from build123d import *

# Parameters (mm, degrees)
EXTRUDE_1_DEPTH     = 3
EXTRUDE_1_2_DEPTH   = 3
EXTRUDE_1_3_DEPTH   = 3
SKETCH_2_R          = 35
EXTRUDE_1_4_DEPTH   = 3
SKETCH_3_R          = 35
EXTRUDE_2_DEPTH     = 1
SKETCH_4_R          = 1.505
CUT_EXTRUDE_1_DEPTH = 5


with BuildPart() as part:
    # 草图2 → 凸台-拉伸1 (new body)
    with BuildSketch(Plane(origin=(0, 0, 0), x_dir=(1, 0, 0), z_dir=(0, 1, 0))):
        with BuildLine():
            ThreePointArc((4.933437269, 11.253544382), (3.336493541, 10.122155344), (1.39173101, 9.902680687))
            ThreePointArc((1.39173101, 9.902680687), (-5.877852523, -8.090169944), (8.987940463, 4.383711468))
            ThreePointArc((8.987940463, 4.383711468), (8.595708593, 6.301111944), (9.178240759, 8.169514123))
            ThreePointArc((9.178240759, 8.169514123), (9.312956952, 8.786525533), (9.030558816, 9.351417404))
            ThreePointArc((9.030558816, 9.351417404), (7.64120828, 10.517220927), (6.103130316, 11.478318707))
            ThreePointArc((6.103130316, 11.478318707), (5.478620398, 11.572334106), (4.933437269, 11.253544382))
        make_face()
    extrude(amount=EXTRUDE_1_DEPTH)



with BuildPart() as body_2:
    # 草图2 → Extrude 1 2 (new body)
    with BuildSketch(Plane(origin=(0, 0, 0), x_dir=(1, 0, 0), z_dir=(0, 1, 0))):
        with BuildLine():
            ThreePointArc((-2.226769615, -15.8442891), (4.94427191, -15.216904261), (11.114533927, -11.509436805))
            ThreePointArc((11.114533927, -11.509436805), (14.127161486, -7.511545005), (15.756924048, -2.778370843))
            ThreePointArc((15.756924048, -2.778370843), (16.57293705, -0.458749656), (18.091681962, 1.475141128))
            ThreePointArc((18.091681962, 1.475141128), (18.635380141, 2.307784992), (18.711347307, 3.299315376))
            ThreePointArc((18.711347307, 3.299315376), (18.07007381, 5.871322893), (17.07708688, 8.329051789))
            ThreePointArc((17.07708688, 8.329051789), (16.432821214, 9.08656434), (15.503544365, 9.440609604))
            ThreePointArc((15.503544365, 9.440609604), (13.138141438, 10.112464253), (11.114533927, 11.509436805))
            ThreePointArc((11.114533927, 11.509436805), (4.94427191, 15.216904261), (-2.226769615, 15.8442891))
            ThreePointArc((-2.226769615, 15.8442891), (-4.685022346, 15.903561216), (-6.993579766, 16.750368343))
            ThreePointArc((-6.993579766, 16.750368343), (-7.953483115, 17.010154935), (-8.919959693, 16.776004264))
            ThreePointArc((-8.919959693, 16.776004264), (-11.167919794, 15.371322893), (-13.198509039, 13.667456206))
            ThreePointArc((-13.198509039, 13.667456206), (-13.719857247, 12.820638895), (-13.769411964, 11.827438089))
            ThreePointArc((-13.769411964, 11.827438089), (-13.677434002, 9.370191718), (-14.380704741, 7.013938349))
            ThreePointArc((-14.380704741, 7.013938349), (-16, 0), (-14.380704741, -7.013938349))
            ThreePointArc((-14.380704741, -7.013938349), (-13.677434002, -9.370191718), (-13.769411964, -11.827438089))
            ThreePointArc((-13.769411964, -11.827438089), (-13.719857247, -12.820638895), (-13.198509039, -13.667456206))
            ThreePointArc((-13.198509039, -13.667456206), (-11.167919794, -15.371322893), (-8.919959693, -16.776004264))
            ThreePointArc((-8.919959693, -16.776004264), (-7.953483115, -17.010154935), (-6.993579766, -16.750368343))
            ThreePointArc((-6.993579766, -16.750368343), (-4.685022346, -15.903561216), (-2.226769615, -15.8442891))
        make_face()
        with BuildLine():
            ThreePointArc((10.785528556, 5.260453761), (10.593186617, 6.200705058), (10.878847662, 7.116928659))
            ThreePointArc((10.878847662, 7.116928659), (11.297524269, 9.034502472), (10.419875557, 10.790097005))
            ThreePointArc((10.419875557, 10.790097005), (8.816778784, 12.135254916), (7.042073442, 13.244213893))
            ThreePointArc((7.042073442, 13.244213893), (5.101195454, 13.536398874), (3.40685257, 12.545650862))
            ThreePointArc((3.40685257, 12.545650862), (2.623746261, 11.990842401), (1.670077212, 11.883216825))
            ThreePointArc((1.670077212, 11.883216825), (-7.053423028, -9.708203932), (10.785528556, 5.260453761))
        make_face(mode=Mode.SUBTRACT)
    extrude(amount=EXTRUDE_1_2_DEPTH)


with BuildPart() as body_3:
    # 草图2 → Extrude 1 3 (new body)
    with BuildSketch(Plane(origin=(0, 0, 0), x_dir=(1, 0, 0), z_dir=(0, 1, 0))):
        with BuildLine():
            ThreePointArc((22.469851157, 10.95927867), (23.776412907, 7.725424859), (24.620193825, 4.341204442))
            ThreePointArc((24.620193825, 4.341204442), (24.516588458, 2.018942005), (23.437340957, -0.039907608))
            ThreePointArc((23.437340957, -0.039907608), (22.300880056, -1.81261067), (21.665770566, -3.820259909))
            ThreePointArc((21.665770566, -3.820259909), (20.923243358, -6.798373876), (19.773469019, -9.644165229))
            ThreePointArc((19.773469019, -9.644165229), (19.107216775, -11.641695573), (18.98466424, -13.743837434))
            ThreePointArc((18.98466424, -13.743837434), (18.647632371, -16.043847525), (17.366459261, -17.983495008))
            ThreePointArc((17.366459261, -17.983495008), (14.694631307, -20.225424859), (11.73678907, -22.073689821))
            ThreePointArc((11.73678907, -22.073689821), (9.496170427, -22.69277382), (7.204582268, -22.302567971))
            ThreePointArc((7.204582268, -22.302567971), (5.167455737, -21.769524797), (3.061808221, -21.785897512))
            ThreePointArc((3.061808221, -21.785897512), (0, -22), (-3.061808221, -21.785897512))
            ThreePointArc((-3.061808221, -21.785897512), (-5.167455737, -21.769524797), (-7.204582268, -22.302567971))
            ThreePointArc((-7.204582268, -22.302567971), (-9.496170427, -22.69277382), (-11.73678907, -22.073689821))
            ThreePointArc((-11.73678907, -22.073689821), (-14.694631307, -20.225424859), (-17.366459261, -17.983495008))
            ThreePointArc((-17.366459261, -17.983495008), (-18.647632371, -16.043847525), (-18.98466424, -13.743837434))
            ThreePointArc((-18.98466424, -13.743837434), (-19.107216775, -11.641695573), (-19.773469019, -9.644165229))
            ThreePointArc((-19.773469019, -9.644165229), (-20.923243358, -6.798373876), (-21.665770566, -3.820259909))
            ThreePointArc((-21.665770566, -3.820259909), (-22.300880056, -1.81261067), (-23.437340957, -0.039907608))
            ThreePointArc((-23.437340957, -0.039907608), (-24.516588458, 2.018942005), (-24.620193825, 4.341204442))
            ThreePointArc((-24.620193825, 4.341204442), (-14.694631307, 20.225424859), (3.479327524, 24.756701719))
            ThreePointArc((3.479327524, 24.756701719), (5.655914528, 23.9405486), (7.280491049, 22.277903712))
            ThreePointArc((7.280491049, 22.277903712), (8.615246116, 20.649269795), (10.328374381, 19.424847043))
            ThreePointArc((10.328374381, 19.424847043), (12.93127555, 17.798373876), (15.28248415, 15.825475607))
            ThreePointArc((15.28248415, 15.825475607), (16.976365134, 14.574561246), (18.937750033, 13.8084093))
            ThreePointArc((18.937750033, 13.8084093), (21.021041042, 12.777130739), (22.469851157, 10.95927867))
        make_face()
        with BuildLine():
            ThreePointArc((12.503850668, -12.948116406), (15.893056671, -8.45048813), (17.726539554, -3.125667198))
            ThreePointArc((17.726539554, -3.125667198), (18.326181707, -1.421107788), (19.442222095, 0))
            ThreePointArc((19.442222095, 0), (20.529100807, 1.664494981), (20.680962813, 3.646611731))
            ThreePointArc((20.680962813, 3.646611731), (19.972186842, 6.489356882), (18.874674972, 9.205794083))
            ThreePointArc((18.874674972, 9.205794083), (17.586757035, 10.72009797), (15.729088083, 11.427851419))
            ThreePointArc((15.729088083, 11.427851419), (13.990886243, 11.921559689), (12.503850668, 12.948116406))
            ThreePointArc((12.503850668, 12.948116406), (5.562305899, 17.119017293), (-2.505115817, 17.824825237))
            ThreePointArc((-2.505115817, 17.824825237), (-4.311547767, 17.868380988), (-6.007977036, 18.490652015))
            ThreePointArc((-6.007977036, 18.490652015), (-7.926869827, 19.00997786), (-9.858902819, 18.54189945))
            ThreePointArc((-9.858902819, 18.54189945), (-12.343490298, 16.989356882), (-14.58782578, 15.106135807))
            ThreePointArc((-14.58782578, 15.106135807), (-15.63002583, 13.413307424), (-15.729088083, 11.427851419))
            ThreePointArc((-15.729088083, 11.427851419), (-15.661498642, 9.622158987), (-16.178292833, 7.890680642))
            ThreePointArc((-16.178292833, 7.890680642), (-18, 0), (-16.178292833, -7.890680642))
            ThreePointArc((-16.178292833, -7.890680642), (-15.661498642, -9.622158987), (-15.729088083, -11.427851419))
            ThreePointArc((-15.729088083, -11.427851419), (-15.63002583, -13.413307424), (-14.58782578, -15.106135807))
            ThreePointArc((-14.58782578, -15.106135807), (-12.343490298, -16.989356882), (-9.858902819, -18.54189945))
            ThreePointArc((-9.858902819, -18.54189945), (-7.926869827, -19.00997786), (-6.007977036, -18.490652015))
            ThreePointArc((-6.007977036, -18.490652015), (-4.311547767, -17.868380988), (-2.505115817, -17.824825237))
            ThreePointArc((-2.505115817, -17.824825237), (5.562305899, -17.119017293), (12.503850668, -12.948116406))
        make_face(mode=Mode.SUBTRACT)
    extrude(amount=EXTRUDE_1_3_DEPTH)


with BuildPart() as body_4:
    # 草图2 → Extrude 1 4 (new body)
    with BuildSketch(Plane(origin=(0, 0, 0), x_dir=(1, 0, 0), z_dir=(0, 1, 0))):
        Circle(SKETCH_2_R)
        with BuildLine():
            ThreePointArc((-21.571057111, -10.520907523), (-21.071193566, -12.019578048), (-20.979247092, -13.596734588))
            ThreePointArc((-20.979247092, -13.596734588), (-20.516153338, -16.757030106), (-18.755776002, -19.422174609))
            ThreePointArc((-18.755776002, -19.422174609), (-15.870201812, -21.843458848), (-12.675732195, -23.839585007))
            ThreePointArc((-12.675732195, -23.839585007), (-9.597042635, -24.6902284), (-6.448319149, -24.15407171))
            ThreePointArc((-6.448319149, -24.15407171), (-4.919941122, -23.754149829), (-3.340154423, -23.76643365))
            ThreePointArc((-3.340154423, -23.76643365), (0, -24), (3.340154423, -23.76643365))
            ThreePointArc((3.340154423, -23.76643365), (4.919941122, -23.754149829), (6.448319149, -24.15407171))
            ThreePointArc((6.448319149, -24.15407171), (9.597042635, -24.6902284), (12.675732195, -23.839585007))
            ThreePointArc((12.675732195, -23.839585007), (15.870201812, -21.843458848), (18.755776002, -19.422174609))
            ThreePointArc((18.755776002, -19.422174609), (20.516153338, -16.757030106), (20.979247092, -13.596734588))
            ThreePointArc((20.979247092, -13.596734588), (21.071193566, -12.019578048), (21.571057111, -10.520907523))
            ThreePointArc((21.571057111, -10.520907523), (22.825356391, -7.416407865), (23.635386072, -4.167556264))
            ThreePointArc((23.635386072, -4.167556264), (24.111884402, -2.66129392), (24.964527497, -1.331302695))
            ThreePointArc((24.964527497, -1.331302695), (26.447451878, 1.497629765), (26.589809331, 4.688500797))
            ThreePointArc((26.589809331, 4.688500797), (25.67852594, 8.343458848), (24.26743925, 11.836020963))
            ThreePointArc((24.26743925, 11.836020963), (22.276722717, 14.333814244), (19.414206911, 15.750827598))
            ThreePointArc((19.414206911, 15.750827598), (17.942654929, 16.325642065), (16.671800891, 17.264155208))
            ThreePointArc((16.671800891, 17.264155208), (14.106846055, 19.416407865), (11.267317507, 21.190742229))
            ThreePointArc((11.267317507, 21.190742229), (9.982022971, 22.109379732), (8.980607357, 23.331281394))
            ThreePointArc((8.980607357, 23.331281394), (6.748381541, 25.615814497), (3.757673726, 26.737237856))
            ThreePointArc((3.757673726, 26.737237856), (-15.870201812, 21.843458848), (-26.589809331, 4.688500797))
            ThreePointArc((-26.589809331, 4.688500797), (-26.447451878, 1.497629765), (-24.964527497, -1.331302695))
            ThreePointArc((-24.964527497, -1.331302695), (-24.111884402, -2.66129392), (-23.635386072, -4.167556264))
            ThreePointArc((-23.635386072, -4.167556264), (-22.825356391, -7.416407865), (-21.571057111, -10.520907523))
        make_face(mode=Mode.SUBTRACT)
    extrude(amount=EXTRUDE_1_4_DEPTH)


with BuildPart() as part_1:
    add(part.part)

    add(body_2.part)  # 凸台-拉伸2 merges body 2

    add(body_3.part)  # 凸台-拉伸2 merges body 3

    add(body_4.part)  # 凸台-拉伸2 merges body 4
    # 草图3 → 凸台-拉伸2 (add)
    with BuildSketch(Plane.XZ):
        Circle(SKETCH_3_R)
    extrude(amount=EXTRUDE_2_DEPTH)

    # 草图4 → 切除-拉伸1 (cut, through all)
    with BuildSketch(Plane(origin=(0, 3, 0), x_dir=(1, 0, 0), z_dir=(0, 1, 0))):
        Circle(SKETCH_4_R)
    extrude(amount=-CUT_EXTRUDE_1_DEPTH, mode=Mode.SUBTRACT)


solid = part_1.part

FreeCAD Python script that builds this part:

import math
import FreeCAD as App
import Part
import Sketcher
Q = App.Units.Quantity

doc = App.newDocument("Part")
body = doc.addObject("PartDesign::Body", "Body")

# Sketch on XZ plane
sketch1 = doc.addObject("Sketcher::SketchObject", "Sketch")
body.addObject(sketch1)
sketch1.AttachmentSupport = (doc.XZ_Plane, [""])
sketch1.MapMode = "FlatFace"
sketch1.addGeometry(Part.ArcOfCircle(Part.Circle(App.Vector(1.9, -13.8, 0), App.Vector(0, 0, 1), 3.9), math.radians(40), math.radians(98)), False)
sketch1.addGeometry(Part.ArcOfCircle(Part.Circle(App.Vector(0, 0, 0), App.Vector(0, 0, 1), 10), math.radians(-26), math.radians(278)), False)
sketch1.addGeometry(Part.ArcOfCircle(Part.Circle(App.Vector(12.5, -6.1, 0), App.Vector(0, 0, 1), 3.9), math.radians(154), math.radians(212)), False)
sketch1.addGeometry(Part.ArcOfCircle(Part.Circle(App.Vector(8.4, -8.7, 0), App.Vector(0, 0, 1), 0.9), math.radians(-46), math.radians(32)), False)
sketch1.addGeometry(Part.ArcOfCircle(Part.Circle(App.Vector(0, 0, 0), App.Vector(0, 0, 1), 13), math.radians(-62), math.radians(-46)), False)
sketch1.addGeometry(Part.ArcOfCircle(Part.Circle(App.Vector(5.7, -10.6, 0), App.Vector(0, 0, 1), 0.9), math.radians(-140), math.radians(-62)), False)
sketch1.addConstraint(Sketcher.Constraint("Tangent", 0, 2, 1, 2))
sketch1.addConstraint(Sketcher.Constraint("Tangent", 1, 1, 2, 1))
sketch1.addConstraint(Sketcher.Constraint("Tangent", 2, 2, 3, 2))
sketch1.addConstraint(Sketcher.Constraint("Tangent", 3, 1, 4, 2))
sketch1.addConstraint(Sketcher.Constraint("Tangent", 4, 1, 5, 2))
sketch1.addConstraint(Sketcher.Constraint("Tangent", 5, 1, 0, 1))
sketch1.addConstraint(Sketcher.Constraint("Coincident", 1, 3, -1, 1))
sketch1.addConstraint(Sketcher.Constraint("Coincident", 4, 3, -1, 1))
sketch1.addConstraint(Sketcher.Constraint("Equal", 0, 2))
sketch1.addConstraint(Sketcher.Constraint("Equal", 3, 5))
sketch1.addConstraint(Sketcher.Constraint("Radius", 1, Q("10 mm")))
sketch1.addConstraint(Sketcher.Constraint("Radius", 4, Q("13 mm")))
sketch1.addConstraint(Sketcher.Constraint("Radius", 0, Q("3.924479 mm")))
sketch1.addConstraint(Sketcher.Constraint("Radius", 3, Q("0.948838 mm")))
sketch1.addConstraint(Sketcher.Constraint("DistanceY", 5, 1, 5, 3, Q("0.613 mm")))
sketch1.addConstraint(Sketcher.Constraint("DistanceY", 0, 2, 3, 3, Q("1.2338 mm")))
pad1 = doc.addObject("PartDesign::Pad", "Pad")
body.addObject(pad1)
pad1.Profile = sketch1
pad1.Length = 3
pad1.Reversed = True
body2 = doc.addObject("PartDesign::Body", "Body001")

# Sketch on XZ plane
sketch2 = doc.addObject("Sketcher::SketchObject", "Sketch001")
body2.addObject(sketch2)
sketch2.AttachmentSupport = (doc.getObject("XZ_Plane001"), [""])
sketch2.MapMode = "FlatFace"
sketch2.addGeometry(Part.ArcOfCircle(Part.Circle(App.Vector(0, 0, 0), App.Vector(0, 0, 1), 16), math.radians(46), math.radians(98)), False)
sketch2.addGeometry(Part.ArcOfCircle(Part.Circle(App.Vector(0, 0, 0), App.Vector(0, 0, 1), 16), math.radians(10), math.radians(46)), False)
sketch2.addGeometry(Part.ArcOfCircle(Part.Circle(App.Vector(23.2, 4.1, 0), App.Vector(0, 0, 1), 7.5), math.radians(-170), math.radians(-132)), False)
sketch2.addGeometry(Part.ArcOfCircle(Part.Circle(App.Vector(16.7, -3, 0), App.Vector(0, 0, 1), 2), math.radians(-10), math.radians(48)), False)
sketch2.addGeometry(Part.ArcOfCircle(Part.Circle(App.Vector(0, 0, 0), App.Vector(0, 0, 1), 19), math.radians(-26), math.radians(-10)), False)
sketch2.addGeometry(Part.ArcOfCircle(Part.Circle(App.Vector(15.3, -7.5, 0), App.Vector(0, 0, 1), 2), math.radians(-84), math.radians(-26)), False)
sketch2.addGeometry(Part.ArcOfCircle(Part.Circle(App.Vector(16.4, -16.9, 0), App.Vector(0, 0, 1), 7.5), math.radians(96), math.radians(134)), False)
sketch2.addGeometry(Part.ArcOfCircle(Part.Circle(App.Vector(0, 0, 0), App.Vector(0, 0, 1), 16), math.radians(-98), math.radians(-46)), False)
sketch2.addGeometry(Part.ArcOfCircle(Part.Circle(App.Vector(-3.3, -23.3, 0), App.Vector(0, 0, 1), 7.5), math.radians(82), math.radians(120)), False)
sketch2.addGeometry(Part.ArcOfCircle(Part.Circle(App.Vector(-8, -15, 0), App.Vector(0, 0, 1), 2), math.radians(-118), math.radians(-60)), False)
sketch2.addGeometry(Part.ArcOfCircle(Part.Circle(App.Vector(0, 0, 0), App.Vector(0, 0, 1), 19), math.radians(-134), math.radians(-118)), False)
sketch2.addGeometry(Part.ArcOfCircle(Part.Circle(App.Vector(-11.8, -12.2, 0), App.Vector(0, 0, 1), 2), math.radians(168), math.radians(226)), False)
sketch2.addGeometry(Part.ArcOfCircle(Part.Circle(App.Vector(-21.2, -10.3, 0), App.Vector(0, 0, 1), 7.5), math.radians(-12), math.radians(26)), False)
sketch2.addGeometry(Part.ArcOfCircle(Part.Circle(App.Vector(0, 0, 0), App.Vector(0, 0, 1), 16), math.radians(154), math.radians(206)), False)
sketch2.addGeometry(Part.ArcOfCircle(Part.Circle(App.Vector(-21.2, 10.3, 0), App.Vector(0, 0, 1), 7.5), math.radians(-26), math.radians(12)), False)
sketch2.addGeometry(Part.ArcOfCircle(Part.Circle(App.Vector(-11.8, 12.2, 0), App.Vector(0, 0, 1), 2), math.radians(134), math.radians(192)), False)
sketch2.addGeometry(Part.ArcOfCircle(Part.Circle(App.Vector(0, 0, 0), App.Vector(0, 0, 1), 19), math.radians(118), math.radians(134)), False)
sketch2.addGeometry(Part.ArcOfCircle(Part.Circle(App.Vector(-8, 15, 0), App.Vector(0, 0, 1), 2), math.radians(60), math.radians(118)), False)
sketch2.addGeometry(Part.ArcOfCircle(Part.Circle(App.Vector(-3.3, 23.3, 0), App.Vector(0, 0, 1), 7.5), math.radians(-120), math.radians(-82)), False)
sketch2.addGeometry(Part.ArcOfCircle(Part.Circle(App.Vector(12.5, -6.1, 0), App.Vector(0, 0, 1), 1.9), math.radians(154), math.radians(212)), False)
sketch2.addGeometry(Part.ArcOfCircle(Part.Circle(App.Vector(0, 0, 0), App.Vector(0, 0, 1), 12), math.radians(-26), math.radians(278)), False)
sketch2.addGeometry(Part.ArcOfCircle(Part.Circle(App.Vector(1.9, -13.8, 0), App.Vector(0, 0, 1), 1.9), math.radians(40), math.radians(98)), False)
sketch2.addGeometry(Part.ArcOfCircle(Part.Circle(App.Vector(5.7, -10.6, 0), App.Vector(0, 0, 1), 2.9), math.radians(-140), math.radians(-62)), False)
sketch2.addGeometry(Part.ArcOfCircle(Part.Circle(App.Vector(0, 0, 0), App.Vector(0, 0, 1), 15), math.radians(-62), math.radians(-46)), False)
sketch2.addGeometry(Part.ArcOfCircle(Part.Circle(App.Vector(8.4, -8.7, 0), App.Vector(0, 0, 1), 2.9), math.radians(-46), math.radians(32)), False)
sketch2.addConstraint(Sketcher.Constraint("Tangent", 0, 1, 1, 2))
sketch2.addConstraint(Sketcher.Constraint("Tangent", 1, 1, 2, 1))
sketch2.addConstraint(Sketcher.Constraint("Tangent", 2, 2, 3, 2))
sketch2.addConstraint(Sketcher.Constraint("Tangent", 3, 1, 4, 2))
sketch2.addConstraint(Sketcher.Constraint("Tangent", 4, 1, 5, 2))
sketch2.addConstraint(Sketcher.Constraint("Tangent", 5, 1, 6, 1))
sketch2.addConstraint(Sketcher.Constraint("Tangent", 6, 2, 7, 2))
sketch2.addConstraint(Sketcher.Constraint("Tangent", 7, 1, 8, 1))
sketch2.addConstraint(Sketcher.Constraint("Tangent", 8, 2, 9, 2))
sketch2.addConstraint(Sketcher.Constraint("Tangent", 9, 1, 10, 2))
sketch2.addConstraint(Sketcher.Constraint("Tangent", 10, 1, 11, 2))
sketch2.addConstraint(Sketcher.Constraint("Tangent", 11, 1, 12, 1))
sketch2.addConstraint(Sketcher.Constraint("Tangent", 12, 2, 13, 2))
sketch2.addConstraint(Sketcher.Constraint("Tangent", 13, 1, 14, 1))
sketch2.addConstraint(Sketcher.Constraint("Tangent", 14, 2, 15, 2))
sketch2.addConstraint(Sketcher.Constraint("Tangent", 15, 1, 16, 2))
sketch2.addConstraint(Sketcher.Constraint("Tangent", 16, 1, 17, 2))
sketch2.addConstraint(Sketcher.Constraint("Tangent", 17, 1, 18, 1))
sketch2.addConstraint(Sketcher.Constraint("Tangent", 18, 2, 0, 2))
sketch2.addConstraint(Sketcher.Constraint("Tangent", 19, 1, 20, 1))
sketch2.addConstraint(Sketcher.Constraint("Tangent", 20, 2, 21, 2))
sketch2.addConstraint(Sketcher.Constraint("Tangent", 21, 1, 22, 1))
sketch2.addConstraint(Sketcher.Constraint("Tangent", 22, 2, 23, 1))
sketch2.addConstraint(Sketcher.Constraint("Tangent", 23, 2, 24, 1))
sketch2.addConstraint(Sketcher.Constraint("Tangent", 24, 2, 19, 2))
sketch2.addConstraint(Sketcher.Constraint("Coincident", 0, 3, -1, 1))
sketch2.addConstraint(Sketcher.Constraint("Coincident", 4, 3, -1, 1))
sketch2.addConstraint(Sketcher.Constraint("Coincident", 7, 3, -1, 1))
sketch2.addConstraint(Sketcher.Constraint("Coincident", 10, 3, -1, 1))
sketch2.addConstraint(Sketcher.Constraint("Coincident", 13, 3, -1, 1))
sketch2.addConstraint(Sketcher.Constraint("Coincident", 16, 3, -1, 1))
sketch2.addConstraint(Sketcher.Constraint("Coincident", 20, 3, -1, 1))
sketch2.addConstraint(Sketcher.Constraint("Coincident", 23, 3, -1, 1))
sketch2.addConstraint(Sketcher.Constraint("Equal", 0, 1))
sketch2.addConstraint(Sketcher.Constraint("Equal", 3, 5))
sketch2.addConstraint(Sketcher.Constraint("Equal", 2, 6))
sketch2.addConstraint(Sketcher.Constraint("Equal", 1, 7))
sketch2.addConstraint(Sketcher.Constraint("Equal", 6, 8))
sketch2.addConstraint(Sketcher.Constraint("Equal", 5, 9))
sketch2.addConstraint(Sketcher.Constraint("Equal", 4, 10))
sketch2.addConstraint(Sketcher.Constraint("Equal", 9, 11))
sketch2.addConstraint(Sketcher.Constraint("Equal", 8, 12))
sketch2.addConstraint(Sketcher.Constraint("Equal", 7, 13))
sketch2.addConstraint(Sketcher.Constraint("Equal", 12, 14))
sketch2.addConstraint(Sketcher.Constraint("Equal", 11, 15))
sketch2.addConstraint(Sketcher.Constraint("Equal", 10, 16))
sketch2.addConstraint(Sketcher.Constraint("Equal", 15, 17))
sketch2.addConstraint(Sketcher.Constraint("Equal", 14, 18))
sketch2.addConstraint(Sketcher.Constraint("Equal", 19, 21))
sketch2.addConstraint(Sketcher.Constraint("Equal", 22, 24))
sketch2.addConstraint(Sketcher.Constraint("Vertical", 12, 3, 14, 3))
sketch2.addConstraint(Sketcher.Constraint("Vertical", 9, 3, 17, 3))
sketch2.addConstraint(Sketcher.Constraint("Vertical", 0, 1, 6, 2))
sketch2.addConstraint(Sketcher.Constraint("Radius", 0, Q("16 mm")))
sketch2.addConstraint(Sketcher.Constraint("Radius", 4, Q("19 mm")))
sketch2.addConstraint(Sketcher.Constraint("Radius", 20, Q("12 mm")))
sketch2.addConstraint(Sketcher.Constraint("Radius", 23, Q("15 mm")))
sketch2.addConstraint(Sketcher.Constraint("Radius", 19, Q("1.924478 mm")))
sketch2.addConstraint(Sketcher.Constraint("Radius", 2, Q("7.542726 mm")))
sketch2.addConstraint(Sketcher.Constraint("Radius", 3, Q("2.001906 mm")))
sketch2.addConstraint(Sketcher.Constraint("Radius", 22, Q("2.948838 mm")))
sketch2.addConstraint(Sketcher.Constraint("DistanceY", 19, 3, 3, 3, Q("3.152402 mm")))
sketch2.addConstraint(Sketcher.Constraint("DistanceX", 5, 3, 4, 1, Q("1.799301 mm")))
sketch2.addConstraint(Sketcher.Constraint("DistanceX", 11, 3, 7, 1, Q("9.581099 mm")))
sketch2.addConstraint(Sketcher.Constraint("DistanceY", 8, 2, 21, 3, Q("2.961402 mm")))
sketch2.addConstraint(Sketcher.Constraint("DistanceY", 9, 1, 11, 3, Q("4.548599 mm")))
sketch2.addConstraint(Sketcher.Constraint("DistanceX", -1, 1, 2, 3, Q("23.185059 mm")))
pad2 = doc.addObject("PartDesign::Pad", "Pad001")
body2.addObject(pad2)
pad2.Profile = sketch2
pad2.Length = 3
pad2.Reversed = True
body3 = doc.addObject("PartDesign::Body", "Body002")

# Sketch on XZ plane
sketch3 = doc.addObject("Sketcher::SketchObject", "Sketch002")
body3.addObject(sketch3)
sketch3.AttachmentSupport = (doc.getObject("XZ_Plane002"), [""])
sketch3.MapMode = "FlatFace"
sketch3.addGeometry(Part.ArcOfCircle(Part.Circle(App.Vector(0, 0, 0), App.Vector(0, 0, 1), 25), math.radians(-26), math.radians(-10)), False)
sketch3.addGeometry(Part.ArcOfCircle(Part.Circle(App.Vector(17.7, -8.6, 0), App.Vector(0, 0, 1), 5.3), math.radians(-76), math.radians(-26)), False)
sketch3.addGeometry(Part.ArcOfCircle(Part.Circle(App.Vector(20.8, -21.6, 0), App.Vector(0, 0, 1), 8), math.radians(104), math.radians(134)), False)
sketch3.addGeometry(Part.ArcOfCircle(Part.Circle(App.Vector(0, 0, 0), App.Vector(0, 0, 1), 22), math.radians(-62), math.radians(-46)), False)
sketch3.addGeometry(Part.ArcOfCircle(Part.Circle(App.Vector(14.1, -26.5, 0), App.Vector(0, 0, 1), 8), math.radians(118), math.radians(148)), False)
sketch3.addGeometry(Part.ArcOfCircle(Part.Circle(App.Vector(2.7, -19.5, 0), App.Vector(0, 0, 1), 5.3), math.radians(-82), math.radians(-32)), False)
sketch3.addGeometry(Part.ArcOfCircle(Part.Circle(App.Vector(0, 0, 0), App.Vector(0, 0, 1), 25), math.radians(-170), math.radians(-82)), False)
sketch3.addGeometry(Part.ArcOfCircle(Part.Circle(App.Vector(-19.4, -3.4, 0), App.Vector(0, 0, 1), 5.3), math.radians(140), math.radians(190)), False)
sketch3.addGeometry(Part.ArcOfCircle(Part.Circle(App.Vector(-29.6, 5.2, 0), App.Vector(0, 0, 1), 8), math.radians(-40), math.radians(-10)), False)
sketch3.addGeometry(Part.ArcOfCircle(Part.Circle(App.Vector(0, 0, 0), App.Vector(0, 0, 1), 22), math.radians(154), math.radians(170)), False)
sketch3.addGeometry(Part.ArcOfCircle(Part.Circle(App.Vector(-27, 13.2, 0), App.Vector(0, 0, 1), 8), math.radians(-26), math.radians(4)), False)
sketch3.addGeometry(Part.ArcOfCircle(Part.Circle(App.Vector(-13.7, 14.1, 0), App.Vector(0, 0, 1), 5.3), math.radians(134), math.radians(184)), False)
sketch3.addGeometry(Part.ArcOfCircle(Part.Circle(App.Vector(0, 0, 0), App.Vector(0, 0, 1), 25), math.radians(118), math.radians(134)), False)
sketch3.addGeometry(Part.ArcOfCircle(Part.Circle(App.Vector(-9.2, 17.4, 0), App.Vector(0, 0, 1), 5.3), math.radians(68), math.radians(118)), False)
sketch3.addGeometry(Part.ArcOfCircle(Part.Circle(App.Vector(-4.2, 29.7, 0), App.Vector(0, 0, 1), 8), math.radians(-112), math.radians(-82)), False)
sketch3.addGeometry(Part.ArcOfCircle(Part.Circle(App.Vector(0, 0, 0), App.Vector(0, 0, 1), 22), math.radians(82), math.radians(98)), False)
sketch3.addGeometry(Part.ArcOfCircle(Part.Circle(App.Vector(4.2, 29.7, 0), App.Vector(0, 0, 1), 8), math.radians(-98), math.radians(-68)), False)
sketch3.addGeometry(Part.ArcOfCircle(Part.Circle(App.Vector(9.2, 17.4, 0), App.Vector(0, 0, 1), 5.3), math.radians(62), math.radians(112)), False)
sketch3.addGeometry(Part.ArcOfCircle(Part.Circle(App.Vector(0, 0, 0), App.Vector(0, 0, 1), 25), math.radians(46), math.radians(62)), False)
sketch3.addGeometry(Part.ArcOfCircle(Part.Circle(App.Vector(13.7, 14.1, 0), App.Vector(0, 0, 1), 5.3), math.radians(-4), math.radians(46)), False)
sketch3.addGeometry(Part.ArcOfCircle(Part.Circle(App.Vector(27, 13.2, 0), App.Vector(0, 0, 1), 8), math.radians(176), math.radians(206)), False)
sketch3.addGeometry(Part.ArcOfCircle(Part.Circle(App.Vector(0, 0, 0), App.Vector(0, 0, 1), 22), math.radians(10), math.radians(26)), False)
sketch3.addGeometry(Part.ArcOfCircle(Part.Circle(App.Vector(29.6, 5.2, 0), App.Vector(0, 0, 1), 8), math.radians(-170), math.radians(-140)), False)
sketch3.addGeometry(Part.ArcOfCircle(Part.Circle(App.Vector(19.4, -3.4, 0), App.Vector(0, 0, 1), 5.3), math.radians(-10), math.radians(40)), False)
sketch3.addGeometry(Part.ArcOfCircle(Part.Circle(App.Vector(0, 0, 0), App.Vector(0, 0, 1), 18), math.radians(46), math.radians(98)), False)
sketch3.addGeometry(Part.ArcOfCircle(Part.Circle(App.Vector(-3.3, 23.3, 0), App.Vector(0, 0, 1), 5.5), math.radians(-120), math.radians(-82)), False)
sketch3.addGeometry(Part.ArcOfCircle(Part.Circle(App.Vector(-8, 15, 0), App.Vector(0, 0, 1), 4), math.radians(60), math.radians(118)), False)
sketch3.addGeometry(Part.ArcOfCircle(Part.Circle(App.Vector(0, 0, 0), App.Vector(0, 0, 1), 21), math.radians(118), math.radians(134)), False)
sketch3.addGeometry(Part.ArcOfCircle(Part.Circle(App.Vector(-11.8, 12.2, 0), App.Vector(0, 0, 1), 4), math.radians(134), math.radians(192)), False)
sketch3.addGeometry(Part.ArcOfCircle(Part.Circle(App.Vector(-21.2, 10.3, 0), App.Vector(0, 0, 1), 5.5), math.radians(-26), math.radians(12)), False)
sketch3.addGeometry(Part.ArcOfCircle(Part.Circle(App.Vector(0, 0, 0), App.Vector(0, 0, 1), 18), math.radians(154), math.radians(206)), False)
sketch3.addGeometry(Part.ArcOfCircle(Part.Circle(App.Vector(-21.2, -10.3, 0), App.Vector(0, 0, 1), 5.5), math.radians(-12), math.radians(26)), False)
sketch3.addGeometry(Part.ArcOfCircle(Part.Circle(App.Vector(-11.8, -12.2, 0), App.Vector(0, 0, 1), 4), math.radians(168), math.radians(226)), False)
sketch3.addGeometry(Part.ArcOfCircle(Part.Circle(App.Vector(0, 0, 0), App.Vector(0, 0, 1), 21), math.radians(-134), math.radians(-118)), False)
sketch3.addGeometry(Part.ArcOfCircle(Part.Circle(App.Vector(-8, -15, 0), App.Vector(0, 0, 1), 4), math.radians(-118), math.radians(-60)), False)
sketch3.addGeometry(Part.ArcOfCircle(Part.Circle(App.Vector(-3.3, -23.3, 0), App.Vector(0, 0, 1), 5.5), math.radians(82), math.radians(120)), False)
sketch3.addGeometry(Part.ArcOfCircle(Part.Circle(App.Vector(0, 0, 0), App.Vector(0, 0, 1), 18), math.radians(-98), math.radians(-46)), False)
sketch3.addGeometry(Part.ArcOfCircle(Part.Circle(App.Vector(16.4, -16.9, 0), App.Vector(0, 0, 1), 5.5), math.radians(96), math.radians(134)), False)
sketch3.addGeometry(Part.ArcOfCircle(Part.Circle(App.Vector(15.3, -7.5, 0), App.Vector(0, 0, 1), 4), math.radians(-84), math.radians(-26)), False)
sketch3.addGeometry(Part.ArcOfCircle(Part.Circle(App.Vector(0, 0, 0), App.Vector(0, 0, 1), 21), math.radians(-26), math.radians(-10)), False)
sketch3.addGeometry(Part.ArcOfCircle(Part.Circle(App.Vector(16.7, -3, 0), App.Vector(0, 0, 1), 4), math.radians(-10), math.radians(48)), False)
sketch3.addGeometry(Part.ArcOfCircle(Part.Circle(App.Vector(23.2, 4.1, 0), App.Vector(0, 0, 1), 5.5), math.radians(-170), math.radians(-132)), False)
sketch3.addGeometry(Part.ArcOfCircle(Part.Circle(App.Vector(0, 0, 0), App.Vector(0, 0, 1), 18), math.radians(10), math.radians(46)), False)
sketch3.addConstraint(Sketcher.Constraint("Tangent", 0, 1, 1, 2))
sketch3.addConstraint(Sketcher.Constraint("Tangent", 1, 1, 2, 1))
sketch3.addConstraint(Sketcher.Constraint("Tangent", 2, 2, 3, 2))
sketch3.addConstraint(Sketcher.Constraint("Tangent", 3, 1, 4, 1))
sketch3.addConstraint(Sketcher.Constraint("Tangent", 4, 2, 5, 2))
sketch3.addConstraint(Sketcher.Constraint("Tangent", 5, 1, 6, 2))
sketch3.addConstraint(Sketcher.Constraint("Tangent", 6, 1, 7, 2))
sketch3.addConstraint(Sketcher.Constraint("Tangent", 7, 1, 8, 1))
sketch3.addConstraint(Sketcher.Constraint("Tangent", 8, 2, 9, 2))
sketch3.addConstraint(Sketcher.Constraint("Tangent", 9, 1, 10, 1))
sketch3.addConstraint(Sketcher.Constraint("Tangent", 10, 2, 11, 2))
sketch3.addConstraint(Sketcher.Constraint("Tangent", 11, 1, 12, 2))
sketch3.addConstraint(Sketcher.Constraint("Tangent", 12, 1, 13, 2))
sketch3.addConstraint(Sketcher.Constraint("Tangent", 13, 1, 14, 1))
sketch3.addConstraint(Sketcher.Constraint("Tangent", 14, 2, 15, 2))
sketch3.addConstraint(Sketcher.Constraint("Tangent", 15, 1, 16, 1))
sketch3.addConstraint(Sketcher.Constraint("Tangent", 16, 2, 17, 2))
sketch3.addConstraint(Sketcher.Constraint("Tangent", 17, 1, 18, 2))
sketch3.addConstraint(Sketcher.Constraint("Tangent", 18, 1, 19, 2))
sketch3.addConstraint(Sketcher.Constraint("Tangent", 19, 1, 20, 1))
sketch3.addConstraint(Sketcher.Constraint("Tangent", 20, 2, 21, 2))
sketch3.addConstraint(Sketcher.Constraint("Tangent", 21, 1, 22, 1))
sketch3.addConstraint(Sketcher.Constraint("Tangent", 22, 2, 23, 2))
sketch3.addConstraint(Sketcher.Constraint("Tangent", 23, 1, 0, 2))
sketch3.addConstraint(Sketcher.Constraint("Tangent", 24, 2, 25, 2))
sketch3.addConstraint(Sketcher.Constraint("Tangent", 25, 1, 26, 1))
sketch3.addConstraint(Sketcher.Constraint("Tangent", 26, 2, 27, 1))
sketch3.addConstraint(Sketcher.Constraint("Tangent", 27, 2, 28, 1))
sketch3.addConstraint(Sketcher.Constraint("Tangent", 28, 2, 29, 2))
sketch3.addConstraint(Sketcher.Constraint("Tangent", 29, 1, 30, 1))
sketch3.addConstraint(Sketcher.Constraint("Tangent", 30, 2, 31, 2))
sketch3.addConstraint(Sketcher.Constraint("Tangent", 31, 1, 32, 1))
sketch3.addConstraint(Sketcher.Constraint("Tangent", 32, 2, 33, 1))
sketch3.addConstraint(Sketcher.Constraint("Tangent", 33, 2, 34, 1))
sketch3.addConstraint(Sketcher.Constraint("Tangent", 34, 2, 35, 2))
sketch3.addConstraint(Sketcher.Constraint("Tangent", 35, 1, 36, 1))
sketch3.addConstraint(Sketcher.Constraint("Tangent", 36, 2, 37, 2))
sketch3.addConstraint(Sketcher.Constraint("Tangent", 37, 1, 38, 1))
sketch3.addConstraint(Sketcher.Constraint("Tangent", 38, 2, 39, 1))
sketch3.addConstraint(Sketcher.Constraint("Tangent", 39, 2, 40, 1))
sketch3.addConstraint(Sketcher.Constraint("Tangent", 40, 2, 41, 2))
sketch3.addConstraint(Sketcher.Constraint("Tangent", 41, 1, 42, 1))
sketch3.addConstraint(Sketcher.Constraint("Tangent", 42, 2, 24, 1))
sketch3.addConstraint(Sketcher.Constraint("Coincident", 0, 3, -1, 1))
sketch3.addConstraint(Sketcher.Constraint("Coincident", 3, 3, -1, 1))
sketch3.addConstraint(Sketcher.Constraint("Coincident", 6, 3, -1, 1))
sketch3.addConstraint(Sketcher.Constraint("Coincident", 9, 3, -1, 1))
sketch3.addConstraint(Sketcher.Constraint("Coincident", 12, 3, -1, 1))
sketch3.addConstraint(Sketcher.Constraint("Coincident", 15, 3, -1, 1))
sketch3.addConstraint(Sketcher.Constraint("Coincident", 18, 3, -1, 1))
sketch3.addConstraint(Sketcher.Constraint("Coincident", 21, 3, -1, 1))
sketch3.addConstraint(Sketcher.Constraint("Coincident", 24, 3, -1, 1))
sketch3.addConstraint(Sketcher.Constraint("Coincident", 27, 3, -1, 1))
sketch3.addConstraint(Sketcher.Constraint("Coincident", 30, 3, -1, 1))
sketch3.addConstraint(Sketcher.Constraint("Coincident", 33, 3, -1, 1))
sketch3.addConstraint(Sketcher.Constraint("Coincident", 36, 3, -1, 1))
sketch3.addConstraint(Sketcher.Constraint("Coincident", 39, 3, -1, 1))
sketch3.addConstraint(Sketcher.Constraint("Equal", 2, 4))
sketch3.addConstraint(Sketcher.Constraint("Equal", 1, 5))
sketch3.addConstraint(Sketcher.Constraint("Equal", 0, 6))
sketch3.addConstraint(Sketcher.Constraint("Equal", 5, 7))
sketch3.addConstraint(Sketcher.Constraint("Equal", 4, 8))
sketch3.addConstraint(Sketcher.Constraint("Equal", 3, 9))
sketch3.addConstraint(Sketcher.Constraint("Equal", 8, 10))
sketch3.addConstraint(Sketcher.Constraint("Equal", 7, 11))
sketch3.addConstraint(Sketcher.Constraint("Equal", 6, 12))
sketch3.addConstraint(Sketcher.Constraint("Equal", 11, 13))
sketch3.addConstraint(Sketcher.Constraint("Equal", 10, 14))
sketch3.addConstraint(Sketcher.Constraint("Equal", 9, 15))
sketch3.addConstraint(Sketcher.Constraint("Equal", 14, 16))
sketch3.addConstraint(Sketcher.Constraint("Equal", 13, 17))
sketch3.addConstraint(Sketcher.Constraint("Equal", 12, 18))
sketch3.addConstraint(Sketcher.Constraint("Equal", 17, 19))
sketch3.addConstraint(Sketcher.Constraint("Equal", 16, 20))
sketch3.addConstraint(Sketcher.Constraint("Equal", 15, 21))
sketch3.addConstraint(Sketcher.Constraint("Equal", 20, 22))
sketch3.addConstraint(Sketcher.Constraint("Equal", 19, 23))
sketch3.addConstraint(Sketcher.Constraint("Equal", 26, 28))
sketch3.addConstraint(Sketcher.Constraint("Equal", 25, 29))
sketch3.addConstraint(Sketcher.Constraint("Equal", 24, 30))
sketch3.addConstraint(Sketcher.Constraint("Equal", 29, 31))
sketch3.addConstraint(Sketcher.Constraint("Equal", 28, 32))
sketch3.addConstraint(Sketcher.Constraint("Equal", 27, 33))
sketch3.addConstraint(Sketcher.Constraint("Equal", 32, 34))
sketch3.addConstraint(Sketcher.Constraint("Equal", 31, 35))
sketch3.addConstraint(Sketcher.Constraint("Equal", 30, 36))
sketch3.addConstraint(Sketcher.Constraint("Equal", 35, 37))
sketch3.addConstraint(Sketcher.Constraint("Equal", 34, 38))
sketch3.addConstraint(Sketcher.Constraint("Equal", 33, 39))
sketch3.addConstraint(Sketcher.Constraint("Equal", 38, 40))
sketch3.addConstraint(Sketcher.Constraint("Equal", 37, 41))
sketch3.addConstraint(Sketcher.Constraint("Equal", 36, 42))
sketch3.addConstraint(Sketcher.Constraint("PointOnObject", 40, 2, -1))
sketch3.addConstraint(Sketcher.Constraint("Horizontal", 14, 3, 16, 3))
sketch3.addConstraint(Sketcher.Constraint("Horizontal", 11, 3, 19, 3))
sketch3.addConstraint(Sketcher.Constraint("Horizontal", 8, 3, 22, 3))
sketch3.addConstraint(Sketcher.Constraint("Horizontal", 31, 1, 37, 1))
sketch3.addConstraint(Sketcher.Constraint("Vertical", 29, 3, 31, 3))
sketch3.addConstraint(Sketcher.Constraint("Vertical", 26, 3, 34, 3))
sketch3.addConstraint(Sketcher.Constraint("Vertical", 36, 2, 42, 2))
sketch3.addConstraint(Sketcher.Constraint("Radius", 0, Q("25 mm")))
sketch3.addConstraint(Sketcher.Constraint("Radius", 3, Q("22 mm")))
sketch3.addConstraint(Sketcher.Constraint("Radius", 24, Q("18 mm")))
sketch3.addConstraint(Sketcher.Constraint("Radius", 27, Q("21 mm")))
sketch3.addConstraint(Sketcher.Constraint("Radius", 1, Q("5.347086 mm")))
sketch3.addConstraint(Sketcher.Constraint("Radius", 2, Q("8.008383 mm")))
sketch3.addConstraint(Sketcher.Constraint("Radius", 25, Q("5.542726 mm")))
sketch3.addConstraint(Sketcher.Constraint("Radius", 26, Q("4.001906 mm")))
sketch3.addConstraint(Sketcher.Constraint("DistanceY", -1, 1, 8, 3, Q("5.210901 mm")))
sketch3.addConstraint(Sketcher.Constraint("DistanceY", 5, 1, -1, 1, Q("24.756702 mm")))
sketch3.addConstraint(Sketcher.Constraint("DistanceY", -1, 1, 26, 2, Q("18.541899 mm")))
sketch3.addConstraint(Sketcher.Constraint("DistanceY", 1, 3, -1, 1, Q("8.61527 mm")))
sketch3.addConstraint(Sketcher.Constraint("DistanceY", -1, 1, 10, 3, Q("13.154809 mm")))
sketch3.addConstraint(Sketcher.Constraint("DistanceX", 14, 3, -1, 1, Q("4.17636 mm")))
sketch3.addConstraint(Sketcher.Constraint("DistanceX", 28, 3, -1, 1, Q("11.807868 mm")))
pad3 = doc.addObject("PartDesign::Pad", "Pad002")
body3.addObject(pad3)
pad3.Profile = sketch3
pad3.Length = 3
pad3.Reversed = True
body4 = doc.addObject("PartDesign::Body", "Body003")

# Sketch on XZ plane
sketch4 = doc.addObject("Sketcher::SketchObject", "Sketch003")
body4.addObject(sketch4)
sketch4.AttachmentSupport = (doc.getObject("XZ_Plane003"), [""])
sketch4.MapMode = "FlatFace"
sketch4.addGeometry(Part.Circle(App.Vector(0, 0, 0), App.Vector(0, 0, 1), 35), False)
sketch4.addGeometry(Part.ArcOfCircle(Part.Circle(App.Vector(-27, 13.2, 0), App.Vector(0, 0, 1), 6), math.radians(-26), math.radians(4)), False)
sketch4.addGeometry(Part.ArcOfCircle(Part.Circle(App.Vector(0, 0, 0), App.Vector(0, 0, 1), 24), math.radians(154), math.radians(170)), False)
sketch4.addGeometry(Part.ArcOfCircle(Part.Circle(App.Vector(-29.6, 5.2, 0), App.Vector(0, 0, 1), 6), math.radians(-40), math.radians(-10)), False)
sketch4.addGeometry(Part.ArcOfCircle(Part.Circle(App.Vector(-19.4, -3.4, 0), App.Vector(0, 0, 1), 7.3), math.radians(140), math.radians(190)), False)
sketch4.addGeometry(Part.ArcOfCircle(Part.Circle(App.Vector(0, 0, 0), App.Vector(0, 0, 1), 27), math.radians(-170), math.radians(-82)), False)
sketch4.addGeometry(Part.ArcOfCircle(Part.Circle(App.Vector(2.7, -19.5, 0), App.Vector(0, 0, 1), 7.3), math.radians(-82), math.radians(-32)), False)
sketch4.addGeometry(Part.ArcOfCircle(Part.Circle(App.Vector(14.1, -26.5, 0), App.Vector(0, 0, 1), 6), math.radians(118), math.radians(148)), False)
sketch4.addGeometry(Part.ArcOfCircle(Part.Circle(App.Vector(0, 0, 0), App.Vector(0, 0, 1), 24), math.radians(-62), math.radians(-46)), False)
sketch4.addGeometry(Part.ArcOfCircle(Part.Circle(App.Vector(20.8, -21.6, 0), App.Vector(0, 0, 1), 6), math.radians(104), math.radians(134)), False)
sketch4.addGeometry(Part.ArcOfCircle(Part.Circle(App.Vector(17.7, -8.6, 0), App.Vector(0, 0, 1), 7.3), math.radians(-76), math.radians(-26)), False)
sketch4.addGeometry(Part.ArcOfCircle(Part.Circle(App.Vector(0, 0, 0), App.Vector(0, 0, 1), 27), math.radians(-26), math.radians(-10)), False)
sketch4.addGeometry(Part.ArcOfCircle(Part.Circle(App.Vector(19.4, -3.4, 0), App.Vector(0, 0, 1), 7.3), math.radians(-10), math.radians(40)), False)
sketch4.addGeometry(Part.ArcOfCircle(Part.Circle(App.Vector(29.6, 5.2, 0), App.Vector(0, 0, 1), 6), math.radians(-170), math.radians(-140)), False)
sketch4.addGeometry(Part.ArcOfCircle(Part.Circle(App.Vector(0, 0, 0), App.Vector(0, 0, 1), 24), math.radians(10), math.radians(26)), False)
sketch4.addGeometry(Part.ArcOfCircle(Part.Circle(App.Vector(27, 13.2, 0), App.Vector(0, 0, 1), 6), math.radians(176), math.radians(206)), False)
sketch4.addGeometry(Part.ArcOfCircle(Part.Circle(App.Vector(13.7, 14.1, 0), App.Vector(0, 0, 1), 7.3), math.radians(-4), math.radians(46)), False)
sketch4.addGeometry(Part.ArcOfCircle(Part.Circle(App.Vector(0, 0, 0), App.Vector(0, 0, 1), 27), math.radians(46), math.radians(62)), False)
sketch4.addGeometry(Part.ArcOfCircle(Part.Circle(App.Vector(9.2, 17.4, 0), App.Vector(0, 0, 1), 7.3), math.radians(62), math.radians(112)), False)
sketch4.addGeometry(Part.ArcOfCircle(Part.Circle(App.Vector(4.2, 29.7, 0), App.Vector(0, 0, 1), 6), math.radians(-98), math.radians(-68)), False)
sketch4.addGeometry(Part.ArcOfCircle(Part.Circle(App.Vector(0, 0, 0), App.Vector(0, 0, 1), 24), math.radians(82), math.radians(98)), False)
sketch4.addGeometry(Part.ArcOfCircle(Part.Circle(App.Vector(-4.2, 29.7, 0), App.Vector(0, 0, 1), 6), math.radians(-112), math.radians(-82)), False)
sketch4.addGeometry(Part.ArcOfCircle(Part.Circle(App.Vector(-9.2, 17.4, 0), App.Vector(0, 0, 1), 7.3), math.radians(68), math.radians(118)), False)
sketch4.addGeometry(Part.ArcOfCircle(Part.Circle(App.Vector(0, 0, 0), App.Vector(0, 0, 1), 27), math.radians(118), math.radians(134)), False)
sketch4.addGeometry(Part.ArcOfCircle(Part.Circle(App.Vector(-13.7, 14.1, 0), App.Vector(0, 0, 1), 7.3), math.radians(134), math.radians(184)), False)
sketch4.addConstraint(Sketcher.Constraint("Tangent", 1, 1, 2, 1))
sketch4.addConstraint(Sketcher.Constraint("Tangent", 2, 2, 3, 2))
sketch4.addConstraint(Sketcher.Constraint("Tangent", 3, 1, 4, 1))
sketch4.addConstraint(Sketcher.Constraint("Tangent", 4, 2, 5, 1))
sketch4.addConstraint(Sketcher.Constraint("Tangent", 5, 2, 6, 1))
sketch4.addConstraint(Sketcher.Constraint("Tangent", 6, 2, 7, 2))
sketch4.addConstraint(Sketcher.Constraint("Tangent", 7, 1, 8, 1))
sketch4.addConstraint(Sketcher.Constraint("Tangent", 8, 2, 9, 2))
sketch4.addConstraint(Sketcher.Constraint("Tangent", 9, 1, 10, 1))
sketch4.addConstraint(Sketcher.Constraint("Tangent", 10, 2, 11, 1))
sketch4.addConstraint(Sketcher.Constraint("Tangent", 11, 2, 12, 1))
sketch4.addConstraint(Sketcher.Constraint("Tangent", 12, 2, 13, 2))
sketch4.addConstraint(Sketcher.Constraint("Tangent", 13, 1, 14, 1))
sketch4.addConstraint(Sketcher.Constraint("Tangent", 14, 2, 15, 2))
sketch4.addConstraint(Sketcher.Constraint("Tangent", 15, 1, 16, 1))
sketch4.addConstraint(Sketcher.Constraint("Tangent", 16, 2, 17, 1))
sketch4.addConstraint(Sketcher.Constraint("Tangent", 17, 2, 18, 1))
sketch4.addConstraint(Sketcher.Constraint("Tangent", 18, 2, 19, 2))
sketch4.addConstraint(Sketcher.Constraint("Tangent", 19, 1, 20, 1))
sketch4.addConstraint(Sketcher.Constraint("Tangent", 20, 2, 21, 2))
sketch4.addConstraint(Sketcher.Constraint("Tangent", 21, 1, 22, 1))
sketch4.addConstraint(Sketcher.Constraint("Tangent", 22, 2, 23, 1))
sketch4.addConstraint(Sketcher.Constraint("Tangent", 23, 2, 24, 1))
sketch4.addConstraint(Sketcher.Constraint("Tangent", 24, 2, 1, 2))
sketch4.addConstraint(Sketcher.Constraint("Coincident", 0, 3, -1, 1))
sketch4.addConstraint(Sketcher.Constraint("Coincident", 2, 3, -1, 1))
sketch4.addConstraint(Sketcher.Constraint("Coincident", 5, 3, -1, 1))
sketch4.addConstraint(Sketcher.Constraint("Coincident", 8, 3, -1, 1))
sketch4.addConstraint(Sketcher.Constraint("Coincident", 11, 3, -1, 1))
sketch4.addConstraint(Sketcher.Constraint("Coincident", 14, 3, -1, 1))
sketch4.addConstraint(Sketcher.Constraint("Coincident", 17, 3, -1, 1))
sketch4.addConstraint(Sketcher.Constraint("Coincident", 20, 3, -1, 1))
sketch4.addConstraint(Sketcher.Constraint("Coincident", 23, 3, -1, 1))
sketch4.addConstraint(Sketcher.Constraint("Equal", 1, 3))
sketch4.addConstraint(Sketcher.Constraint("Equal", 4, 6))
sketch4.addConstraint(Sketcher.Constraint("Equal", 3, 7))
sketch4.addConstraint(Sketcher.Constraint("Equal", 2, 8))
sketch4.addConstraint(Sketcher.Constraint("Equal", 7, 9))
sketch4.addConstraint(Sketcher.Constraint("Equal", 6, 10))
sketch4.addConstraint(Sketcher.Constraint("Equal", 5, 11))
sketch4.addConstraint(Sketcher.Constraint("Equal", 10, 12))
sketch4.addConstraint(Sketcher.Constraint("Equal", 9, 13))
sketch4.addConstraint(Sketcher.Constraint("Equal", 8, 14))
sketch4.addConstraint(Sketcher.Constraint("Equal", 13, 15))
sketch4.addConstraint(Sketcher.Constraint("Equal", 12, 16))
sketch4.addConstraint(Sketcher.Constraint("Equal", 11, 17))
sketch4.addConstraint(Sketcher.Constraint("Equal", 16, 18))
sketch4.addConstraint(Sketcher.Constraint("Equal", 15, 19))
sketch4.addConstraint(Sketcher.Constraint("Equal", 14, 20))
sketch4.addConstraint(Sketcher.Constraint("Equal", 19, 21))
sketch4.addConstraint(Sketcher.Constraint("Equal", 18, 22))
sketch4.addConstraint(Sketcher.Constraint("Equal", 17, 23))
sketch4.addConstraint(Sketcher.Constraint("Equal", 22, 24))
sketch4.addConstraint(Sketcher.Constraint("Horizontal", 4, 3, 12, 3))
sketch4.addConstraint(Sketcher.Constraint("Horizontal", 1, 3, 15, 3))
sketch4.addConstraint(Sketcher.Constraint("Horizontal", 19, 3, 21, 3))
sketch4.addConstraint(Sketcher.Constraint("Diameter", 0, Q("70 mm")))
sketch4.addConstraint(Sketcher.Constraint("Radius", 2, Q("24 mm")))
sketch4.addConstraint(Sketcher.Constraint("Radius", 5, Q("27 mm")))
sketch4.addConstraint(Sketcher.Constraint("Radius", 1, Q("6.008383 mm")))
sketch4.addConstraint(Sketcher.Constraint("Radius", 4, Q("7.347086 mm")))
sketch4.addConstraint(Sketcher.Constraint("DistanceY", -1, 1, 3, 3, Q("5.210901 mm")))
sketch4.addConstraint(Sketcher.Constraint("DistanceX", -1, 1, 8, 2, Q("16.671801 mm")))
sketch4.addConstraint(Sketcher.Constraint("DistanceX", 4, 3, 6, 3, Q("22.089499 mm")))
sketch4.addConstraint(Sketcher.Constraint("DistanceX", 19, 3, 16, 3, Q("9.475701 mm")))
sketch4.addConstraint(Sketcher.Constraint("DistanceX", 1, 3, 1, 1, Q("5.400299 mm")))
pad4 = doc.addObject("PartDesign::Pad", "Pad003")
body4.addObject(pad4)
pad4.Profile = sketch4
pad4.Length = 3
pad4.Reversed = True
body.AllowCompound = True
doc.recompute()

boolean = doc.addObject("PartDesign::Boolean", "Boolean")
body.addObject(boolean)
boolean.Type = "Fuse"
boolean.addObjects([body2])
doc.recompute()

boolean2 = doc.addObject("PartDesign::Boolean", "Boolean001")
body.addObject(boolean2)
boolean2.Type = "Fuse"
boolean2.addObjects([body3])
doc.recompute()

boolean3 = doc.addObject("PartDesign::Boolean", "Boolean002")
body.addObject(boolean3)
boolean3.Type = "Fuse"
boolean3.addObjects([body4])

# Sketch on XZ plane
sketch5 = doc.addObject("Sketcher::SketchObject", "Sketch004")
body.addObject(sketch5)
sketch5.AttachmentSupport = (doc.XZ_Plane, [""])
sketch5.MapMode = "FlatFace"
sketch5.addGeometry(Part.Circle(App.Vector(0, 0, 0), App.Vector(0, 0, 1), 35), False)
sketch5.addConstraint(Sketcher.Constraint("Coincident", 0, 3, -1, 1))
sketch5.addConstraint(Sketcher.Constraint("Diameter", 0, Q("70 mm")))
pad5 = doc.addObject("PartDesign::Pad", "Pad004")
body.addObject(pad5)
pad5.Profile = sketch5
pad5.Length = 1

# Sketch on XZ plane
sketch6 = doc.addObject("Sketcher::SketchObject", "Sketch005")
body.addObject(sketch6)
sketch6.AttachmentSupport = (doc.XZ_Plane, [""])
sketch6.MapMode = "FlatFace"
sketch6.AttachmentOffset = App.Placement(App.Vector(0, 0, -3), App.Rotation())
sketch6.addGeometry(Part.Circle(App.Vector(0, 0, 0), App.Vector(0, 0, 1), 1.5), False)
sketch6.addConstraint(Sketcher.Constraint("Coincident", 0, 3, -1, 1))
sketch6.addConstraint(Sketcher.Constraint("Diameter", 0, Q("3.01 mm")))
pocket1 = doc.addObject("PartDesign::Pocket", "Pocket")
body.addObject(pocket1)
pocket1.Profile = sketch6
pocket1.Type = "ThroughAll"
pocket1.Reversed = True

doc.recompute()
